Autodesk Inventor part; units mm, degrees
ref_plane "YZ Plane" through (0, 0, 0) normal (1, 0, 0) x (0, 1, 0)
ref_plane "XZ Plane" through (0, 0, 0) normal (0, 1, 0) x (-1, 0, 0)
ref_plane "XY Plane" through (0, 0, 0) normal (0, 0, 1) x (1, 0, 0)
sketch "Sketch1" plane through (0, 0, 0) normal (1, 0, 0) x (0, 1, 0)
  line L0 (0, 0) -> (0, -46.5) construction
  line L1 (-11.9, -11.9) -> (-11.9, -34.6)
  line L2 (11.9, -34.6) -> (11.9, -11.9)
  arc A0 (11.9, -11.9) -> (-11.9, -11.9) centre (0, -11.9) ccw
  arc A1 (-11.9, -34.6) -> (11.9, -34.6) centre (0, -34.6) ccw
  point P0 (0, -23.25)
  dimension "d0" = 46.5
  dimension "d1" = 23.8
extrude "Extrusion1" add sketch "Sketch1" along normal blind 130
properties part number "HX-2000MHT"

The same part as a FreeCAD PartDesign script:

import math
import FreeCAD as App
import Part
import Sketcher
Q = App.Units.Quantity

doc = App.newDocument("Part")
params = doc.addObject("Spreadsheet::Sheet", "Params")
for row, (alias, value) in enumerate([
    ("pad1_length", "5.1181102 in"),
], start=1):
    params.set(f"A{row}", alias)
    params.set(f"B{row}", "=" + value)
    params.setAlias(f"B{row}", alias)

body = doc.addObject("PartDesign::Body", "Body")

# Sketch on YZ plane
sketch1 = body.newObject("Sketcher::SketchObject", "Sketch")
sketch1.AttachmentSupport = (doc.getObject("YZ_Plane"), [""])
sketch1.MapMode = "FlatFace"
sketch1.addGeometry(Part.ArcOfCircle(Part.Circle(App.Vector(0, -12, 0), App.Vector(0, 0, 1), 12), math.radians(0), math.radians(180)), False)
sketch1.addGeometry(Part.LineSegment(App.Vector(-12, -12, 0), App.Vector(-12, -35, 0)), False)
sketch1.addGeometry(Part.ArcOfCircle(Part.Circle(App.Vector(0, -35, 0), App.Vector(0, 0, 1), 12), math.radians(180), math.radians(360)), False)
sketch1.addGeometry(Part.LineSegment(App.Vector(12, -35, 0), App.Vector(12, -12, 0)), False)
sketch1.addConstraint(Sketcher.Constraint("Tangent", 0, 2, 1, 1))
sketch1.addConstraint(Sketcher.Constraint("Tangent", 1, 2, 2, 1))
sketch1.addConstraint(Sketcher.Constraint("Tangent", 2, 2, 3, 1))
sketch1.addConstraint(Sketcher.Constraint("Tangent", 3, 2, 0, 1))
sketch1.addConstraint(Sketcher.Constraint("Vertical", 1))
sketch1.addConstraint(Sketcher.Constraint("Vertical", 3))
sketch1.addConstraint(Sketcher.Constraint("PointOnObject", 0, 3, -2))
sketch1.addConstraint(Sketcher.Constraint("Radius", 0, Q("0.4685 in")))
sketch1.addConstraint(Sketcher.Constraint("DistanceY", 1, 2, 1, 1, Q("0.8937 in")))
sketch1.addConstraint(Sketcher.Constraint("DistanceY", 0, 3, -1, 1, Q("0.4685 in")))
pad1 = body.newObject("PartDesign::Pad", "Pad")
pad1.Profile = sketch1
pad1.setExpression("Length", "Params.pad1_length")

doc.recompute()
